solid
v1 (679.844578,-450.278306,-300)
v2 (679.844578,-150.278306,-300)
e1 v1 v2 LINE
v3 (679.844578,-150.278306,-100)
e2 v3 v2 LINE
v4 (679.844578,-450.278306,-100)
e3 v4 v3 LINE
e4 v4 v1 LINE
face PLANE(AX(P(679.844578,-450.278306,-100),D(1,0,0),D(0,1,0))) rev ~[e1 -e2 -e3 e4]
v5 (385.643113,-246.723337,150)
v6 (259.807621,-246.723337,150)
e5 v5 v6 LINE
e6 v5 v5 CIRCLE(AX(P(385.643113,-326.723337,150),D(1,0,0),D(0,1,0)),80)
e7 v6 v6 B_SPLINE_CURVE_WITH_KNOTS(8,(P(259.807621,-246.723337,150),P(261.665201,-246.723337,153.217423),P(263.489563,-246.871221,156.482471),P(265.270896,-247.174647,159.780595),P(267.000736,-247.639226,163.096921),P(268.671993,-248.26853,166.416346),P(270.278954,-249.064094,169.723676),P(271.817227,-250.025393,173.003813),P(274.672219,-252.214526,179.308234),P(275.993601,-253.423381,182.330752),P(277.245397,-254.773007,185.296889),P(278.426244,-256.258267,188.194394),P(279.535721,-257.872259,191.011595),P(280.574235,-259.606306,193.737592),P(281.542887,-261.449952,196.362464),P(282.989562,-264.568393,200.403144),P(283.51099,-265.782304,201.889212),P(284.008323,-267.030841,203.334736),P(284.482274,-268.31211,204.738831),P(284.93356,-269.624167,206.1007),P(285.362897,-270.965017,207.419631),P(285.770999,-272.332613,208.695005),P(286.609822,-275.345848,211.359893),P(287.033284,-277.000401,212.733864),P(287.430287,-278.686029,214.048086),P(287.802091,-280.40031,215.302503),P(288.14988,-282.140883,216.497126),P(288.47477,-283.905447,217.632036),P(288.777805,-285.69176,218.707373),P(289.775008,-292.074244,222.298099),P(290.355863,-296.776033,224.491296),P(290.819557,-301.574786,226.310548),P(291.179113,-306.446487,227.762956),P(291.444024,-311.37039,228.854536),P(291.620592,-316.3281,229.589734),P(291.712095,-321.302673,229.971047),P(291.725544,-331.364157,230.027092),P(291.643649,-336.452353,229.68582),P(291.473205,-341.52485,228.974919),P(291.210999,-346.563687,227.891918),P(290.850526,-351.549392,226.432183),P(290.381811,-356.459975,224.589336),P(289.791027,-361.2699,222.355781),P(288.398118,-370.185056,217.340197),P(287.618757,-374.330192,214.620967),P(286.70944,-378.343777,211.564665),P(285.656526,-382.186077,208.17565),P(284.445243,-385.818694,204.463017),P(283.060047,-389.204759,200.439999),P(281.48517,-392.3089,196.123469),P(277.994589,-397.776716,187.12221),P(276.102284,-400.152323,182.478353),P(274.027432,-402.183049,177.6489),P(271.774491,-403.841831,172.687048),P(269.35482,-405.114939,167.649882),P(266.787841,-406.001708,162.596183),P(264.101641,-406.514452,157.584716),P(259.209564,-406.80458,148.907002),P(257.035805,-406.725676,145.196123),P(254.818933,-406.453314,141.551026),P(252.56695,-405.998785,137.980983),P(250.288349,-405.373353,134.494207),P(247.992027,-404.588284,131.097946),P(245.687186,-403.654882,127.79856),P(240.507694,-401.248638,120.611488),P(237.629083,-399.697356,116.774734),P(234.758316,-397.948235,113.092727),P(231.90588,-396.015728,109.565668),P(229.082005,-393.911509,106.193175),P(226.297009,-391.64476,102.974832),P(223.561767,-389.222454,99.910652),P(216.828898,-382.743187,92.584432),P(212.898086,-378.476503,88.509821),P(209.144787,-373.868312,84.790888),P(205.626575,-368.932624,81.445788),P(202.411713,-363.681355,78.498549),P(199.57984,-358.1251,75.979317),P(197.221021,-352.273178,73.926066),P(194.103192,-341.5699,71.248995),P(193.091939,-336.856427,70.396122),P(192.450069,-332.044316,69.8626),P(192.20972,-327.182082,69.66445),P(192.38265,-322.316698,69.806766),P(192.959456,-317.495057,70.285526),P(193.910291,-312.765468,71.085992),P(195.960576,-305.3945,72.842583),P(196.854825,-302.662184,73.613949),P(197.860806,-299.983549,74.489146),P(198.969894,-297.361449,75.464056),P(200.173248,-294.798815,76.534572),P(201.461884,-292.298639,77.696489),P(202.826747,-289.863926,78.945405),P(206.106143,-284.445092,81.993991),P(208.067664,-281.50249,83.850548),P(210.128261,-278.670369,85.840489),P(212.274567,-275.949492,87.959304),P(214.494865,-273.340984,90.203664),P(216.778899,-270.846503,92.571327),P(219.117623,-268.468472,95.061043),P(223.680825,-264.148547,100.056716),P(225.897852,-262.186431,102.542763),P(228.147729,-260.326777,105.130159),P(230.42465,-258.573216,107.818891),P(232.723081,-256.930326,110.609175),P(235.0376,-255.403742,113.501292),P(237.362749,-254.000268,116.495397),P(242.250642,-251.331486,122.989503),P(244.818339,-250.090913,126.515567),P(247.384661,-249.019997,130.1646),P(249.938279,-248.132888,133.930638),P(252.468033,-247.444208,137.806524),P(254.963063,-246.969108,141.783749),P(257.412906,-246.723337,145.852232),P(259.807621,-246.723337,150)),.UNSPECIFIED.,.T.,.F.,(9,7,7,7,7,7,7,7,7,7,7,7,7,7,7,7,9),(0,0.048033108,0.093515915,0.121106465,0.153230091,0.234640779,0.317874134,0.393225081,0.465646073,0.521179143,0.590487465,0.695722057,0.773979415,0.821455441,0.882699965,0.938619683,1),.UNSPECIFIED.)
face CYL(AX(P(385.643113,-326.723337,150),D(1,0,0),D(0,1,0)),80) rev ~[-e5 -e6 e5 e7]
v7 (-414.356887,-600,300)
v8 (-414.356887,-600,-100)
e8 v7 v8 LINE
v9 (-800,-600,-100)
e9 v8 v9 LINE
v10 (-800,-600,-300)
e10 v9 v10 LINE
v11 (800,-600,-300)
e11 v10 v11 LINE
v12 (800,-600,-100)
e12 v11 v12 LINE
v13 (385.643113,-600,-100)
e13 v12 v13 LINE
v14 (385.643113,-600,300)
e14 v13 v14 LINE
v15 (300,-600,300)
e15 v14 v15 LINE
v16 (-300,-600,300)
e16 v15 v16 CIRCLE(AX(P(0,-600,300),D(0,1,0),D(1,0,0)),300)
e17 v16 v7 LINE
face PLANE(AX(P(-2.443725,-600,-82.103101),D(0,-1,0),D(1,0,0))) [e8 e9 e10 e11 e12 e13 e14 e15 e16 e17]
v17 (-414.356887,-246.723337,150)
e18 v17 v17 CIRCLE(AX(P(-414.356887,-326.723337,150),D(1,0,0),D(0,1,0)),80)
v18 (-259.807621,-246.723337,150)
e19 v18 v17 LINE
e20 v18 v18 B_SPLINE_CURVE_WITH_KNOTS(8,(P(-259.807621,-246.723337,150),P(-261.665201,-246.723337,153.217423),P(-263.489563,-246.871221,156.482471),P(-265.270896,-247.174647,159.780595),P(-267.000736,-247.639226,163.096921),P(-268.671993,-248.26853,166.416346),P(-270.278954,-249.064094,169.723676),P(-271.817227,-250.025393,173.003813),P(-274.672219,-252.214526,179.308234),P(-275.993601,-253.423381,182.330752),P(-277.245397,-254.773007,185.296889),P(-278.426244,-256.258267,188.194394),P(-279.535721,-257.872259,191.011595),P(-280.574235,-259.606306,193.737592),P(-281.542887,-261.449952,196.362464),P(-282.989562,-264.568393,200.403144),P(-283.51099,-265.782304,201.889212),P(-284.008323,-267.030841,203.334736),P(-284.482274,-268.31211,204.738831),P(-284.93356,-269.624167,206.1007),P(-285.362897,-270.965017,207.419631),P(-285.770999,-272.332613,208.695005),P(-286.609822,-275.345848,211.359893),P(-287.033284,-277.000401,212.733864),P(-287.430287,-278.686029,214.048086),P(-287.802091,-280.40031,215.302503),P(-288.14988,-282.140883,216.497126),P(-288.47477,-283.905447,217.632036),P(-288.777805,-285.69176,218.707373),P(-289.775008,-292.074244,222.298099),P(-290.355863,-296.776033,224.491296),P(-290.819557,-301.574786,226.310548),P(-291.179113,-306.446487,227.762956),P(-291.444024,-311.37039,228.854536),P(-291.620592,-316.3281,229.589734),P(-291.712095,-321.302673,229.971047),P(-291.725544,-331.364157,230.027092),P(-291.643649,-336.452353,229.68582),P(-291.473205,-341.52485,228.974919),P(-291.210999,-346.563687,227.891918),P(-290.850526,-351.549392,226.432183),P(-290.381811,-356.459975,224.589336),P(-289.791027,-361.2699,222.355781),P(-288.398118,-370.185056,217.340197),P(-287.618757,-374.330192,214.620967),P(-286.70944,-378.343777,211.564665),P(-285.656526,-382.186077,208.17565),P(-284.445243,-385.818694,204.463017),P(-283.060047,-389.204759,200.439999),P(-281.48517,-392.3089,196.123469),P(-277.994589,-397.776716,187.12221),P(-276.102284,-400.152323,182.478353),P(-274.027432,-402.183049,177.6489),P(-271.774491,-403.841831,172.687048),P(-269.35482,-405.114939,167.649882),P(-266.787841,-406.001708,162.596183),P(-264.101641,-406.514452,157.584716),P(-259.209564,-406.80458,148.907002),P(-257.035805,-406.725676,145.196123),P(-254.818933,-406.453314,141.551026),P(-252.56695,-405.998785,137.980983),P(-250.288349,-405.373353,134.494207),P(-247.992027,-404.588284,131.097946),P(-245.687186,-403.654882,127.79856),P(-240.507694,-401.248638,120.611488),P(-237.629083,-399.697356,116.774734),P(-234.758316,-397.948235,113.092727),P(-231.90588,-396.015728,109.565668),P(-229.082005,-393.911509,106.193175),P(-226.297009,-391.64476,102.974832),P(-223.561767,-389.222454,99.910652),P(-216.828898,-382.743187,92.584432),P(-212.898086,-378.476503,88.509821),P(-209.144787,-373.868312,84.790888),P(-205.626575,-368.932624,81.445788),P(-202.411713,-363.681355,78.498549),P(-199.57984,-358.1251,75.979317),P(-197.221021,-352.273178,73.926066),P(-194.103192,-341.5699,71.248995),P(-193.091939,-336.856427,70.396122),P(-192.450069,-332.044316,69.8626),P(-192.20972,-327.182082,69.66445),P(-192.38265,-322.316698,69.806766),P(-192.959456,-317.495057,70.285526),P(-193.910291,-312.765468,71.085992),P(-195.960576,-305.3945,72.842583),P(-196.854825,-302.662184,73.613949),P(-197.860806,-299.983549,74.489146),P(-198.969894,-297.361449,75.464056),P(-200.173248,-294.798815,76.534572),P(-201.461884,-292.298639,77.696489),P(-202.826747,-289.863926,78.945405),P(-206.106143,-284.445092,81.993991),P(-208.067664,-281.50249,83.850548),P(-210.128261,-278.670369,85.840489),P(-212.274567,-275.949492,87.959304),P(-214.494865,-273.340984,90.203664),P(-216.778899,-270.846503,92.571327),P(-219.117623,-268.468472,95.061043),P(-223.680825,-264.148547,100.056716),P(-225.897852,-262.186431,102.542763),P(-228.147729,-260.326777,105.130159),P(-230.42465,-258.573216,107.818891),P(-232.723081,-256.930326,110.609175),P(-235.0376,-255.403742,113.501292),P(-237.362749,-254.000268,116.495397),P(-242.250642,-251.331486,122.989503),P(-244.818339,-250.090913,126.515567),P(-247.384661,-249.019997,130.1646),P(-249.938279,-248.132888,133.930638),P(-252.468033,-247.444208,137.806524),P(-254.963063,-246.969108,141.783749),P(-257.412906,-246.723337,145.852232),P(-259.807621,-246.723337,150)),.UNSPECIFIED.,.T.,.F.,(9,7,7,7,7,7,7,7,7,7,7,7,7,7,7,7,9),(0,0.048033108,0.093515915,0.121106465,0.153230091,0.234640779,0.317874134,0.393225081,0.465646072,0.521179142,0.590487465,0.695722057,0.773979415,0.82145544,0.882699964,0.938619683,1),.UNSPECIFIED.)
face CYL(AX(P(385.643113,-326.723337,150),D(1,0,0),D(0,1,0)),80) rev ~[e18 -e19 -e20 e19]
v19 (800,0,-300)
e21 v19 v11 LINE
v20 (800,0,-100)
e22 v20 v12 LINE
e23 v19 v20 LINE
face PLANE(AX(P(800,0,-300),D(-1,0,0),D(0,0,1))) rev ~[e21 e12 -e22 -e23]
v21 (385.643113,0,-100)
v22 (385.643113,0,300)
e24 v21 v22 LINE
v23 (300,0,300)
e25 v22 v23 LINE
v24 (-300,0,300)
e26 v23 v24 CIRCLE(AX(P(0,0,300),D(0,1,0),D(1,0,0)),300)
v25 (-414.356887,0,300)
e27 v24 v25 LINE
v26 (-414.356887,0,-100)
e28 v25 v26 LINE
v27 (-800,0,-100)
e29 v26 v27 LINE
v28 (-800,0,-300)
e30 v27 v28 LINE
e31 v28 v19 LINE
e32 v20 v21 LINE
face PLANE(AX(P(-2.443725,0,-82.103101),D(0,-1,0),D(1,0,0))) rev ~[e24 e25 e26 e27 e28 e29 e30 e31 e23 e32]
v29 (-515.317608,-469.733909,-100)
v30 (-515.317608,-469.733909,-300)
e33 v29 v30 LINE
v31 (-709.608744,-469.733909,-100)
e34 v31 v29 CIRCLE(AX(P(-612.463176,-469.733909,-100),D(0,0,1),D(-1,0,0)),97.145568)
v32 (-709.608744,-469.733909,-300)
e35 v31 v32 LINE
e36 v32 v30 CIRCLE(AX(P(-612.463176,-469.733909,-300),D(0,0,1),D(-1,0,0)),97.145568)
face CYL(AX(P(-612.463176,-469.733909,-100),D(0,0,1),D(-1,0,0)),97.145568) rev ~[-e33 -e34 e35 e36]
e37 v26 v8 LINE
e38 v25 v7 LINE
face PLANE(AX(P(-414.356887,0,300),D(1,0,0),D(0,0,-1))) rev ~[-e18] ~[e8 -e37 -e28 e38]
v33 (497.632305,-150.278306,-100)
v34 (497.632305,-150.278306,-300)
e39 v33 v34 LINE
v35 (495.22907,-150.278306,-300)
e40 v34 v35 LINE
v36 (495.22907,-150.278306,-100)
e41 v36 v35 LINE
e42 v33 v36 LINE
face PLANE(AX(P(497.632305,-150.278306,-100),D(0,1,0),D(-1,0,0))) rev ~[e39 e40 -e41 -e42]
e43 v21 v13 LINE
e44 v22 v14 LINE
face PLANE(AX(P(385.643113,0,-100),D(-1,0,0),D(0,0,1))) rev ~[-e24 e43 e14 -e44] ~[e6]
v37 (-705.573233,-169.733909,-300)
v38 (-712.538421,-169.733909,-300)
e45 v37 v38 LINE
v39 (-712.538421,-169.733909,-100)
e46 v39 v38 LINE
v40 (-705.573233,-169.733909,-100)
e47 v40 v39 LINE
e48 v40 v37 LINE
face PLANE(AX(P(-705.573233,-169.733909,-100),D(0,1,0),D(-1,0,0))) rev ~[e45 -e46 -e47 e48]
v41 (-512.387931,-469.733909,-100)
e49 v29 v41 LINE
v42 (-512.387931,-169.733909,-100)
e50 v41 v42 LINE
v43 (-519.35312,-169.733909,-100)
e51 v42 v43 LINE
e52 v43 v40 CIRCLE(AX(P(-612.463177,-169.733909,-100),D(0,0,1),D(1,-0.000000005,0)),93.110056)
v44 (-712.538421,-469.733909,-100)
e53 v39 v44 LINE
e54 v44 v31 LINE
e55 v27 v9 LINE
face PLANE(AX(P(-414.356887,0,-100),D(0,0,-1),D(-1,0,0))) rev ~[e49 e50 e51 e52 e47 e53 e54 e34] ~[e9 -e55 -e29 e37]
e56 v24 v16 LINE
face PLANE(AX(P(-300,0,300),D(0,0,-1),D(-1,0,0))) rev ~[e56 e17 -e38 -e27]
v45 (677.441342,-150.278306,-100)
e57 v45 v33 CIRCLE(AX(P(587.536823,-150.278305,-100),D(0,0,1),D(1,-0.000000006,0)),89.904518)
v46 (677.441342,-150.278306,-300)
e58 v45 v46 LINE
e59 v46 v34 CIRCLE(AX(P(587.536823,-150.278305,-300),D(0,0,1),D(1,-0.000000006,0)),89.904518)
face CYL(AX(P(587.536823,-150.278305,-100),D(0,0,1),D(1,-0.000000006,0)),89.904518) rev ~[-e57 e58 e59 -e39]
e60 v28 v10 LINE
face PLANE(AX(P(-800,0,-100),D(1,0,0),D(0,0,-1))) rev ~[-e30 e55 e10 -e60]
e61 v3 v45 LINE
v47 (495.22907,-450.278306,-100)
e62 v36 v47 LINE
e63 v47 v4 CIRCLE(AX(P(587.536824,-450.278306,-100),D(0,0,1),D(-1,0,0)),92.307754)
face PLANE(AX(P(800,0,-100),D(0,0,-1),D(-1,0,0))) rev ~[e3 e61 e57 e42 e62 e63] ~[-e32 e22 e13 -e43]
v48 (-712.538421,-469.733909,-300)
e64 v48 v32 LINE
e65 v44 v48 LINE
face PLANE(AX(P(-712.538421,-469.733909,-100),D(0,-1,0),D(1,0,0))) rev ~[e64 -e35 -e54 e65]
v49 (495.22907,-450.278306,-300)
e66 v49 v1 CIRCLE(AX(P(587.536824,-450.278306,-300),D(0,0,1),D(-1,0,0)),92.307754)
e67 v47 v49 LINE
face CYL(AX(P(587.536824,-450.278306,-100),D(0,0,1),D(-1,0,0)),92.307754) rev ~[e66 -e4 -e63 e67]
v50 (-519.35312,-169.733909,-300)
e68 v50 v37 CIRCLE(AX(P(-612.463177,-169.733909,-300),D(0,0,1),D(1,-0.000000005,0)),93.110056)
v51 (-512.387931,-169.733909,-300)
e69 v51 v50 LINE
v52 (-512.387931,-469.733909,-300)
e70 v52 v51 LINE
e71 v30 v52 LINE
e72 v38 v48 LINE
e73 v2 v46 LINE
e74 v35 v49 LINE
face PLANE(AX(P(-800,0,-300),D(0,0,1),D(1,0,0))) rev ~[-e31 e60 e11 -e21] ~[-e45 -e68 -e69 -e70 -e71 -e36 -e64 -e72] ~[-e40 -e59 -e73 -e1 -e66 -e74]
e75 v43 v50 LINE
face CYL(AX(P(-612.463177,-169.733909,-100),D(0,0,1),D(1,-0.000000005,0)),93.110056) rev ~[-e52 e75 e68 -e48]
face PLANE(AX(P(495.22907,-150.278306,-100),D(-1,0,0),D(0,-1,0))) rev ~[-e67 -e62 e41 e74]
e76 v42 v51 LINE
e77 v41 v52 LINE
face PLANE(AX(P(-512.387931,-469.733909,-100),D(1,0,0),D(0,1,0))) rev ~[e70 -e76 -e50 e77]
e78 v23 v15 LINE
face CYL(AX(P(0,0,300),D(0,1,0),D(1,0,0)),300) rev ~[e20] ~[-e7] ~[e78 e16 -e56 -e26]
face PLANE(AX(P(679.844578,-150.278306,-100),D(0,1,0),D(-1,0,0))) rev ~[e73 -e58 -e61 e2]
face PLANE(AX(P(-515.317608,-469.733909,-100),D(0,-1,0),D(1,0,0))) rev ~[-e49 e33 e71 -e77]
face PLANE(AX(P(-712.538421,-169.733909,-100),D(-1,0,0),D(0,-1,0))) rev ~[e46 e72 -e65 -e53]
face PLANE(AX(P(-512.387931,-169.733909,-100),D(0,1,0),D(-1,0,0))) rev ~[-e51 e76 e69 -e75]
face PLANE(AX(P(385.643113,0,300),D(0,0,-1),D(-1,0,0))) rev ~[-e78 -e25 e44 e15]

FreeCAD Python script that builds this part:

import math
import FreeCAD as App
import Part
import Sketcher
from FreeCAD import Vector

doc = App.newDocument("Part")
body = doc.addObject("PartDesign::Body", "Body")

# Sketch on XZ plane
sketch1 = body.newObject("Sketcher::SketchObject", "Sketch")
sketch1.AttachmentSupport = (doc.getObject("XZ_Plane"), [""])
sketch1.MapMode = "FlatFace"
sketch1.addGeometry(Part.LineSegment(Vector(-800, -300, 0), Vector(800, -300, 0)), False)
sketch1.addGeometry(Part.LineSegment(Vector(800, -300, 0), Vector(800, -100, 0)), False)
sketch1.addGeometry(Part.LineSegment(Vector(800, -100, 0), Vector(386, -100, 0)), False)
sketch1.addGeometry(Part.LineSegment(Vector(386, -100, 0), Vector(386, 300, 0)), False)
sketch1.addGeometry(Part.LineSegment(Vector(386, 300, 0), Vector(300, 300, 0)), False)
sketch1.addGeometry(Part.ArcOfCircle(Part.Circle(Vector(0, 300, 0), Vector(0, 0, 1), 300), math.radians(180), math.radians(360)), False)
sketch1.addGeometry(Part.LineSegment(Vector(-300, 300, 0), Vector(-414, 300, 0)), False)
sketch1.addGeometry(Part.LineSegment(Vector(-414, 300, 0), Vector(-414, -100, 0)), False)
sketch1.addGeometry(Part.LineSegment(Vector(-414, -100, 0), Vector(-800, -100, 0)), False)
sketch1.addGeometry(Part.LineSegment(Vector(-800, -100, 0), Vector(-800, -300, 0)), False)
sketch1.addConstraint(Sketcher.Constraint("Coincident", 0, 2, 1, 1))
sketch1.addConstraint(Sketcher.Constraint("Coincident", 1, 2, 2, 1))
sketch1.addConstraint(Sketcher.Constraint("Coincident", 2, 2, 3, 1))
sketch1.addConstraint(Sketcher.Constraint("Coincident", 3, 2, 4, 1))
sketch1.addConstraint(Sketcher.Constraint("Coincident", 4, 2, 5, 2))
sketch1.addConstraint(Sketcher.Constraint("Coincident", 5, 1, 6, 1))
sketch1.addConstraint(Sketcher.Constraint("Coincident", 6, 2, 7, 1))
sketch1.addConstraint(Sketcher.Constraint("Coincident", 7, 2, 8, 1))
sketch1.addConstraint(Sketcher.Constraint("Coincident", 8, 2, 9, 1))
sketch1.addConstraint(Sketcher.Constraint("Coincident", 9, 2, 0, 1))
sketch1.addConstraint(Sketcher.Constraint("Horizontal", 0))
sketch1.addConstraint(Sketcher.Constraint("Vertical", 1))
sketch1.addConstraint(Sketcher.Constraint("Horizontal", 2))
sketch1.addConstraint(Sketcher.Constraint("Vertical", 3))
sketch1.addConstraint(Sketcher.Constraint("Horizontal", 4))
sketch1.addConstraint(Sketcher.Constraint("Horizontal", 6))
sketch1.addConstraint(Sketcher.Constraint("Vertical", 7))
sketch1.addConstraint(Sketcher.Constraint("Horizontal", 8))
sketch1.addConstraint(Sketcher.Constraint("Vertical", 9))
sketch1.addConstraint(Sketcher.Constraint("Symmetric", 4, 2, 5, 1, -2))
sketch1.addConstraint(Sketcher.Constraint("Symmetric", 1, 2, 8, 2, -2))
sketch1.addConstraint(Sketcher.Constraint("Horizontal", 5, 3, 3, 2))
sketch1.addConstraint(Sketcher.Constraint("Radius", 5, 300.0))
sketch1.addConstraint(Sketcher.Constraint("DistanceX", 0, 1, 0, 2, 1600.0))
sketch1.addConstraint(Sketcher.Constraint("DistanceY", 1, 1, 1, 2, 200.0))
sketch1.addConstraint(Sketcher.Constraint("DistanceY", 3, 1, 3, 2, 400.0))
sketch1.addConstraint(Sketcher.Constraint("DistanceY", -1, 1, 5, 3, 300.0))
sketch1.addConstraint(Sketcher.Constraint("DistanceX", 6, 2, 3, 2, 800.0))
sketch1.addConstraint(Sketcher.Constraint("DistanceX", 2, 2, 2, 1, 414.356887))
pad1 = body.newObject("PartDesign::Pad", "Pad")
pad1.Profile = sketch1
pad1.Length = 600

# Sketch on YZ plane
sketch2 = body.newObject("Sketcher::SketchObject", "Sketch001")
sketch2.AttachmentSupport = (doc.getObject("YZ_Plane"), [""])
sketch2.MapMode = "FlatFace"
sketch2.AttachmentOffset = App.Placement(Vector(0, 0, 385.643113), App.Rotation())
sketch2.addGeometry(Part.Circle(Vector(-327, 150, 0), Vector(0, 0, 1), 80), False)
sketch2.addConstraint(Sketcher.Constraint("Diameter", 0, 160.0))
sketch2.addConstraint(Sketcher.Constraint("DistanceY", -1, 1, 0, 3, 150.0))
sketch2.addConstraint(Sketcher.Constraint("DistanceX", 0, 3, -1, 1, 326.723337))
pocket1 = body.newObject("PartDesign::Pocket", "Pocket")
pocket1.Profile = sketch2
pocket1.Type = "ThroughAll"

# Sketch on XY plane
sketch3 = body.newObject("Sketcher::SketchObject", "Sketch002")
sketch3.AttachmentSupport = (doc.getObject("XY_Plane"), [""])
sketch3.MapMode = "FlatFace"
sketch3.AttachmentOffset = App.Placement(Vector(0, 0, -100), App.Rotation())
sketch3.addGeometry(Part.LineSegment(Vector(679.8, -450.3, 0), Vector(679.8, -150.3, 0)), False)
sketch3.addGeometry(Part.LineSegment(Vector(679.8, -150.3, 0), Vector(677.4, -150.3, 0)), False)
sketch3.addGeometry(Part.ArcOfCircle(Part.Circle(Vector(587.5, -150.3, 0), Vector(0, 0, 1), 89.9), math.radians(0), math.radians(180)), False)
sketch3.addGeometry(Part.LineSegment(Vector(497.6, -150.3, 0), Vector(495.2, -150.3, 0)), False)
sketch3.addGeometry(Part.LineSegment(Vector(495.2, -150.3, 0), Vector(495.2, -450.3, 0)), False)
sketch3.addGeometry(Part.ArcOfCircle(Part.Circle(Vector(587.5, -450.3, 0), Vector(0, 0, 1), 92.3), math.radians(180), math.radians(360)), False)
sketch3.addGeometry(Part.LineSegment(Vector(-512.4, -469.7, 0), Vector(-512.4, -169.7, 0)), False)
sketch3.addGeometry(Part.LineSegment(Vector(-512.4, -169.7, 0), Vector(-519.4, -169.7, 0)), False)
sketch3.addGeometry(Part.ArcOfCircle(Part.Circle(Vector(-612.5, -169.7, 0), Vector(0, 0, 1), 93.1), math.radians(0), math.radians(180)), False)
sketch3.addGeometry(Part.LineSegment(Vector(-705.6, -169.7, 0), Vector(-712.5, -169.7, 0)), False)
sketch3.addGeometry(Part.LineSegment(Vector(-712.5, -169.7, 0), Vector(-712.5, -469.7, 0)), False)
sketch3.addGeometry(Part.LineSegment(Vector(-712.5, -469.7, 0), Vector(-709.6, -469.7, 0)), False)
sketch3.addGeometry(Part.ArcOfCircle(Part.Circle(Vector(-612.5, -469.7, 0), Vector(0, 0, 1), 97.1), math.radians(180), math.radians(360)), False)
sketch3.addGeometry(Part.LineSegment(Vector(-515.3, -469.7, 0), Vector(-512.4, -469.7, 0)), False)
sketch3.addConstraint(Sketcher.Constraint("Coincident", 0, 2, 1, 1))
sketch3.addConstraint(Sketcher.Constraint("Coincident", 1, 2, 2, 1))
sketch3.addConstraint(Sketcher.Constraint("Coincident", 2, 2, 3, 1))
sketch3.addConstraint(Sketcher.Constraint("Coincident", 3, 2, 4, 1))
sketch3.addConstraint(Sketcher.Constraint("Tangent", 4, 2, 5, 1))
sketch3.addConstraint(Sketcher.Constraint("Tangent", 5, 2, 0, 1))
sketch3.addConstraint(Sketcher.Constraint("Coincident", 6, 2, 7, 1))
sketch3.addConstraint(Sketcher.Constraint("Coincident", 7, 2, 8, 1))
sketch3.addConstraint(Sketcher.Constraint("Coincident", 8, 2, 9, 1))
sketch3.addConstraint(Sketcher.Constraint("Coincident", 9, 2, 10, 1))
sketch3.addConstraint(Sketcher.Constraint("Coincident", 10, 2, 11, 1))
sketch3.addConstraint(Sketcher.Constraint("Coincident", 11, 2, 12, 1))
sketch3.addConstraint(Sketcher.Constraint("Coincident", 12, 2, 13, 1))
sketch3.addConstraint(Sketcher.Constraint("Coincident", 13, 2, 6, 1))
sketch3.addConstraint(Sketcher.Constraint("Vertical", 0))
sketch3.addConstraint(Sketcher.Constraint("Horizontal", 1))
sketch3.addConstraint(Sketcher.Constraint("Horizontal", 3))
sketch3.addConstraint(Sketcher.Constraint("Vertical", 4))
sketch3.addConstraint(Sketcher.Constraint("Vertical", 6))
sketch3.addConstraint(Sketcher.Constraint("Horizontal", 7))
sketch3.addConstraint(Sketcher.Constraint("Horizontal", 9))
sketch3.addConstraint(Sketcher.Constraint("Vertical", 10))
sketch3.addConstraint(Sketcher.Constraint("Horizontal", 11))
sketch3.addConstraint(Sketcher.Constraint("Horizontal", 13))
sketch3.addConstraint(Sketcher.Constraint("Horizontal", 2, 3, 0, 2))
sketch3.addConstraint(Sketcher.Constraint("Horizontal", 1, 2, 2, 2))
sketch3.addConstraint(Sketcher.Constraint("Horizontal", 8, 3, 6, 2))
sketch3.addConstraint(Sketcher.Constraint("Horizontal", 7, 2, 8, 2))
sketch3.addConstraint(Sketcher.Constraint("Horizontal", 12, 3, 10, 2))
sketch3.addConstraint(Sketcher.Constraint("Horizontal", 11, 2, 12, 2))
sketch3.addConstraint(Sketcher.Constraint("Vertical", 2, 3, 5, 3))
sketch3.addConstraint(Sketcher.Constraint("Vertical", 8, 3, 12, 3))
sketch3.addConstraint(Sketcher.Constraint("Equal", 7, 9))
sketch3.addConstraint(Sketcher.Constraint("Equal", 4, 6))
sketch3.addConstraint(Sketcher.Constraint("DistanceY", 0, 1, 0, 2, 300.0))
sketch3.addConstraint(Sketcher.Constraint("DistanceX", 8, 3, 2, 3, 1200.0))
sketch3.addConstraint(Sketcher.Constraint("Radius", 2, 89.904518))
sketch3.addConstraint(Sketcher.Constraint("Radius", 5, 92.307754))
sketch3.addConstraint(Sketcher.Constraint("Radius", 8, 93.110056))
sketch3.addConstraint(Sketcher.Constraint("Radius", 12, 97.145568))
sketch3.addConstraint(Sketcher.Constraint("DistanceX", 6, 2, 3, 2, 1007.617001))
sketch3.addConstraint(Sketcher.Constraint("DistanceY", 8, 3, -1, 1, 169.733909))
sketch3.addConstraint(Sketcher.Constraint("DistanceX", -1, 1, 0, 2, 679.844578))
sketch3.addConstraint(Sketcher.Constraint("DistanceY", 2, 3, -1, 1, 150.278305))
pocket2 = body.newObject("PartDesign::Pocket", "Pocket001")
pocket2.Profile = sketch3
pocket2.Type = "ThroughAll"

doc.recompute()
